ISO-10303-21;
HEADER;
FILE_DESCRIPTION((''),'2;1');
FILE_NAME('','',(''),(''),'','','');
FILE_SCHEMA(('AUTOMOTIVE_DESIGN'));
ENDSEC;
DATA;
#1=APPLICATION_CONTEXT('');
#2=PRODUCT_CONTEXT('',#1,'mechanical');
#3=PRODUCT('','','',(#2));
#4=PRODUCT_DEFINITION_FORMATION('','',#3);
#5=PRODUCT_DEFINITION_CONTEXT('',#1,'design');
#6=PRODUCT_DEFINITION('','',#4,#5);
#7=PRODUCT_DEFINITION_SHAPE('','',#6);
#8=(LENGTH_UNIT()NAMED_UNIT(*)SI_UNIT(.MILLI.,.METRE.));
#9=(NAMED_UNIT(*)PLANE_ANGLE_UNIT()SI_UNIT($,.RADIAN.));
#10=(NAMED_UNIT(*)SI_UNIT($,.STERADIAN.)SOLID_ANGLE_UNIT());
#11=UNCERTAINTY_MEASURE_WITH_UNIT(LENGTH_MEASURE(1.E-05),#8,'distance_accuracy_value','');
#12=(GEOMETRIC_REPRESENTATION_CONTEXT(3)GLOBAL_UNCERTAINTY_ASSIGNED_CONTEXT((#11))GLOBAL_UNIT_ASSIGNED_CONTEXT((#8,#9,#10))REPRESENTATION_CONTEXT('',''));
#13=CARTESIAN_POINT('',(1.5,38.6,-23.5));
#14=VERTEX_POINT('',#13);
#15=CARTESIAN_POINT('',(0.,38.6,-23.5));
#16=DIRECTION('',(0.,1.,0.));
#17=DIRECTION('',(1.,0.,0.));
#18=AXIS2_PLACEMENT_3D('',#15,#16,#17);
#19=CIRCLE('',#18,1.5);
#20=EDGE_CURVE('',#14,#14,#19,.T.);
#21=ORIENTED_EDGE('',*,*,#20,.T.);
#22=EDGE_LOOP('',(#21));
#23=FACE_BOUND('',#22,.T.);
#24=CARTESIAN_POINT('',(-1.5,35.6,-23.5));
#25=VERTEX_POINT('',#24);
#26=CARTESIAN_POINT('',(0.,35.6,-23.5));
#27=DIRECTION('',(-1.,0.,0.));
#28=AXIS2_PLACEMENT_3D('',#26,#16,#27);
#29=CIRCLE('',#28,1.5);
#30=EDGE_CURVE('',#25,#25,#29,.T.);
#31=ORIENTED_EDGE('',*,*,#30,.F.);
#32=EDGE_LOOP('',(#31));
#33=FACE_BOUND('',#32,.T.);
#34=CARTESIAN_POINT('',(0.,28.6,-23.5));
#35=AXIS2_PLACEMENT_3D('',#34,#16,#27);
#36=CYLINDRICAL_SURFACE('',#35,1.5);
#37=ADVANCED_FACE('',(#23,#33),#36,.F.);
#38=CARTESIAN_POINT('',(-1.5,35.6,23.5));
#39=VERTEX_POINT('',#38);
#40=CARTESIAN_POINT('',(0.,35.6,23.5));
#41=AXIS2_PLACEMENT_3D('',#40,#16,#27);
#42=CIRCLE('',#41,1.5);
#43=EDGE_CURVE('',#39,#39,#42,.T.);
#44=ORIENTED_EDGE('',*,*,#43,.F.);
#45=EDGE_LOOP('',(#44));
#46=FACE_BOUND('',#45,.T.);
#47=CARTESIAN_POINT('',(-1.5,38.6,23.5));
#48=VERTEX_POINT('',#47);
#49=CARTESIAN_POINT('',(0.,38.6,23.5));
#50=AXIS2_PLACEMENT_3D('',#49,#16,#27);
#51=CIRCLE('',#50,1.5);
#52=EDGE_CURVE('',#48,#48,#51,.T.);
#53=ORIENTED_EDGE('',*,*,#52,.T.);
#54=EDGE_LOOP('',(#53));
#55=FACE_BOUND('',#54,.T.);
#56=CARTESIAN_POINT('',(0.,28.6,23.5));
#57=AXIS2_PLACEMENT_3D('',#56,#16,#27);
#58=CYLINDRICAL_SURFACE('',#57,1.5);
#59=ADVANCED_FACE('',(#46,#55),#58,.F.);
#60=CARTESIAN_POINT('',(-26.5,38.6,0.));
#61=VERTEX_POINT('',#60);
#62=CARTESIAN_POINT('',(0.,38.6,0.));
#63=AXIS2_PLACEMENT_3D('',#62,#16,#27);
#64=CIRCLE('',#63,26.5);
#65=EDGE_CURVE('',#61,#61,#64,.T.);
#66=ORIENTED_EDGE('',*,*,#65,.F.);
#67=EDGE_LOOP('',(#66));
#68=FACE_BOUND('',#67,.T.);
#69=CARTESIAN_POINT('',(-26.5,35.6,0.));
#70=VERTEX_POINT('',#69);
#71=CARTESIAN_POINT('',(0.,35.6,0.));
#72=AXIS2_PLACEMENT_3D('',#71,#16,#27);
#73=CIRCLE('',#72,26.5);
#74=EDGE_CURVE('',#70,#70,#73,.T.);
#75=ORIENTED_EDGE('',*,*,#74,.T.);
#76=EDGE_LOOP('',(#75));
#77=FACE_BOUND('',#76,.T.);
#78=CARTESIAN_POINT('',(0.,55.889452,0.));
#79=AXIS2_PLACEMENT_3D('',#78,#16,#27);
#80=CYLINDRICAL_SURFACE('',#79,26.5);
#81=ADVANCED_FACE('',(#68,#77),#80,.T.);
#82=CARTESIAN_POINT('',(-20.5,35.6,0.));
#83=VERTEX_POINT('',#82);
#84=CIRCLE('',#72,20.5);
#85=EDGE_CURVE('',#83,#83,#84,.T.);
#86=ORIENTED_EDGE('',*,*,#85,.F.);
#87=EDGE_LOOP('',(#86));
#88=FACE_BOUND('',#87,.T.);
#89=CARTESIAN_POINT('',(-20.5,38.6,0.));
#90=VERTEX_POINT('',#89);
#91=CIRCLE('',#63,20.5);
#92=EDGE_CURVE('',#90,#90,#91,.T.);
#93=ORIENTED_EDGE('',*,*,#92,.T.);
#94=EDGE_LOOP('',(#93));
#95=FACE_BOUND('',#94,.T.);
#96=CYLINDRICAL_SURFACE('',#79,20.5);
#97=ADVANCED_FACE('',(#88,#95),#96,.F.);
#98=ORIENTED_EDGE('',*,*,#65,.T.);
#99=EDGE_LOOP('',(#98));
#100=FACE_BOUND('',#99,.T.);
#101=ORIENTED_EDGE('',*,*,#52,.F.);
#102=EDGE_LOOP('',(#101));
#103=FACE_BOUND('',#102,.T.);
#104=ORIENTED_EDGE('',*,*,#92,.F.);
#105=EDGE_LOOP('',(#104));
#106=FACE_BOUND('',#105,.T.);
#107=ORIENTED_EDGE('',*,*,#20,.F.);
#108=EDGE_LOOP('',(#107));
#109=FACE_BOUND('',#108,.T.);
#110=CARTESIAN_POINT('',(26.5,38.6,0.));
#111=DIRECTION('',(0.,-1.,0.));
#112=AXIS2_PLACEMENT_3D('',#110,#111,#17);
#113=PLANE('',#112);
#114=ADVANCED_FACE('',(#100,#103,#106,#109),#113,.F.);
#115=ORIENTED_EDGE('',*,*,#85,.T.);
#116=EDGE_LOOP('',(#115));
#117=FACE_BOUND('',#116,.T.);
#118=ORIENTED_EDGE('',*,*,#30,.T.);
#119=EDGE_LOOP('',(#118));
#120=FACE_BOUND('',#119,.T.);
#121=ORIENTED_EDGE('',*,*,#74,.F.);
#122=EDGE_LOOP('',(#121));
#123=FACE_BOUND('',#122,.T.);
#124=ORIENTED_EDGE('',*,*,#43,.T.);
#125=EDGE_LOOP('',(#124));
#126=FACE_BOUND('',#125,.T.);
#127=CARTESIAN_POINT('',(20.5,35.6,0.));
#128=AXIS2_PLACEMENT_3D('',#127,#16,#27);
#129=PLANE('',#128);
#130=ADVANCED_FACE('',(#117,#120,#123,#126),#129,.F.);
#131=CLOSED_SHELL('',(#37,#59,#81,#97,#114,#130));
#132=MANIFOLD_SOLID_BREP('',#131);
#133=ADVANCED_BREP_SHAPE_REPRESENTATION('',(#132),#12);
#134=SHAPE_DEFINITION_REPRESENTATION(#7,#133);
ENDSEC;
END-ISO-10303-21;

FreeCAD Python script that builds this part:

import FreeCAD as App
import Part
import Sketcher


def add_polygon(sketch, points):
    """Adds a closed chain of lines whose ends are joined by coincident constraints."""
    first, n = sketch.GeometryCount, len(points)
    for a, b in zip(points, points[1:] + points[:1]):
        sketch.addGeometry(Part.LineSegment(App.Vector(*a, 0), App.Vector(*b, 0)), False)
    for i in range(n):
        sketch.addConstraint(Sketcher.Constraint("Coincident", first + i, 2, first + (i + 1) % n, 1))

doc = App.newDocument("Part")
body = doc.addObject("PartDesign::Body", "Body")

# Sketch on XY plane
sketch1 = body.newObject("Sketcher::SketchObject", "Sketch")
sketch1.AttachmentSupport = (doc.getObject("XY_Plane"), [""])
sketch1.MapMode = "FlatFace"
add_polygon(sketch1, [(20.5, 38.6), (20.5, 35.6), (26.5, 35.6), (26.5, 38.6)])  # lines 0-3
sketch1.addConstraint(Sketcher.Constraint("Vertical", 0))
sketch1.addConstraint(Sketcher.Constraint("Horizontal", 1))
sketch1.addConstraint(Sketcher.Constraint("Vertical", 2))
sketch1.addConstraint(Sketcher.Constraint("Horizontal", 3))
sketch1.addConstraint(Sketcher.Constraint("DistanceX", 1, 1, 1, 2, 6.0))
sketch1.addConstraint(Sketcher.Constraint("DistanceY", 0, 2, 0, 1, 3.0))
sketch1.addConstraint(Sketcher.Constraint("DistanceX", -1, 1, 0, 2, 20.5))
sketch1.addConstraint(Sketcher.Constraint("DistanceY", -1, 1, 0, 2, 35.6))
revolution = body.newObject("PartDesign::Revolution", "Revolution")
revolution.Profile = sketch1
revolution.ReferenceAxis = (sketch1, ["V_Axis"])
revolution.Angle = 360

# Sketch on XZ plane
sketch2 = body.newObject("Sketcher::SketchObject", "Sketch001")
sketch2.AttachmentSupport = (doc.getObject("XZ_Plane"), [""])
sketch2.MapMode = "FlatFace"
sketch2.AttachmentOffset = App.Placement(App.Vector(0, 0, -38.6), App.Rotation())
sketch2.addGeometry(Part.Circle(App.Vector(0, 23.5, 0), App.Vector(0, 0, 1), 1.5), False)
sketch2.addGeometry(Part.Circle(App.Vector(0, -23.5, 0), App.Vector(0, 0, 1), 1.5), False)
sketch2.addConstraint(Sketcher.Constraint("Equal", 0, 1))
sketch2.addConstraint(Sketcher.Constraint("Symmetric", 0, 3, 1, 3, -1, 1))
sketch2.addConstraint(Sketcher.Constraint("PointOnObject", 0, 3, -2))
sketch2.addConstraint(Sketcher.Constraint("Diameter", 0, 3.0))
sketch2.addConstraint(Sketcher.Constraint("DistanceY", 1, 3, 0, 3, 47.0))
pocket1 = body.newObject("PartDesign::Pocket", "Pocket")
pocket1.Profile = sketch2
pocket1.Length = 10
pocket1.Reversed = True

doc.recompute()
